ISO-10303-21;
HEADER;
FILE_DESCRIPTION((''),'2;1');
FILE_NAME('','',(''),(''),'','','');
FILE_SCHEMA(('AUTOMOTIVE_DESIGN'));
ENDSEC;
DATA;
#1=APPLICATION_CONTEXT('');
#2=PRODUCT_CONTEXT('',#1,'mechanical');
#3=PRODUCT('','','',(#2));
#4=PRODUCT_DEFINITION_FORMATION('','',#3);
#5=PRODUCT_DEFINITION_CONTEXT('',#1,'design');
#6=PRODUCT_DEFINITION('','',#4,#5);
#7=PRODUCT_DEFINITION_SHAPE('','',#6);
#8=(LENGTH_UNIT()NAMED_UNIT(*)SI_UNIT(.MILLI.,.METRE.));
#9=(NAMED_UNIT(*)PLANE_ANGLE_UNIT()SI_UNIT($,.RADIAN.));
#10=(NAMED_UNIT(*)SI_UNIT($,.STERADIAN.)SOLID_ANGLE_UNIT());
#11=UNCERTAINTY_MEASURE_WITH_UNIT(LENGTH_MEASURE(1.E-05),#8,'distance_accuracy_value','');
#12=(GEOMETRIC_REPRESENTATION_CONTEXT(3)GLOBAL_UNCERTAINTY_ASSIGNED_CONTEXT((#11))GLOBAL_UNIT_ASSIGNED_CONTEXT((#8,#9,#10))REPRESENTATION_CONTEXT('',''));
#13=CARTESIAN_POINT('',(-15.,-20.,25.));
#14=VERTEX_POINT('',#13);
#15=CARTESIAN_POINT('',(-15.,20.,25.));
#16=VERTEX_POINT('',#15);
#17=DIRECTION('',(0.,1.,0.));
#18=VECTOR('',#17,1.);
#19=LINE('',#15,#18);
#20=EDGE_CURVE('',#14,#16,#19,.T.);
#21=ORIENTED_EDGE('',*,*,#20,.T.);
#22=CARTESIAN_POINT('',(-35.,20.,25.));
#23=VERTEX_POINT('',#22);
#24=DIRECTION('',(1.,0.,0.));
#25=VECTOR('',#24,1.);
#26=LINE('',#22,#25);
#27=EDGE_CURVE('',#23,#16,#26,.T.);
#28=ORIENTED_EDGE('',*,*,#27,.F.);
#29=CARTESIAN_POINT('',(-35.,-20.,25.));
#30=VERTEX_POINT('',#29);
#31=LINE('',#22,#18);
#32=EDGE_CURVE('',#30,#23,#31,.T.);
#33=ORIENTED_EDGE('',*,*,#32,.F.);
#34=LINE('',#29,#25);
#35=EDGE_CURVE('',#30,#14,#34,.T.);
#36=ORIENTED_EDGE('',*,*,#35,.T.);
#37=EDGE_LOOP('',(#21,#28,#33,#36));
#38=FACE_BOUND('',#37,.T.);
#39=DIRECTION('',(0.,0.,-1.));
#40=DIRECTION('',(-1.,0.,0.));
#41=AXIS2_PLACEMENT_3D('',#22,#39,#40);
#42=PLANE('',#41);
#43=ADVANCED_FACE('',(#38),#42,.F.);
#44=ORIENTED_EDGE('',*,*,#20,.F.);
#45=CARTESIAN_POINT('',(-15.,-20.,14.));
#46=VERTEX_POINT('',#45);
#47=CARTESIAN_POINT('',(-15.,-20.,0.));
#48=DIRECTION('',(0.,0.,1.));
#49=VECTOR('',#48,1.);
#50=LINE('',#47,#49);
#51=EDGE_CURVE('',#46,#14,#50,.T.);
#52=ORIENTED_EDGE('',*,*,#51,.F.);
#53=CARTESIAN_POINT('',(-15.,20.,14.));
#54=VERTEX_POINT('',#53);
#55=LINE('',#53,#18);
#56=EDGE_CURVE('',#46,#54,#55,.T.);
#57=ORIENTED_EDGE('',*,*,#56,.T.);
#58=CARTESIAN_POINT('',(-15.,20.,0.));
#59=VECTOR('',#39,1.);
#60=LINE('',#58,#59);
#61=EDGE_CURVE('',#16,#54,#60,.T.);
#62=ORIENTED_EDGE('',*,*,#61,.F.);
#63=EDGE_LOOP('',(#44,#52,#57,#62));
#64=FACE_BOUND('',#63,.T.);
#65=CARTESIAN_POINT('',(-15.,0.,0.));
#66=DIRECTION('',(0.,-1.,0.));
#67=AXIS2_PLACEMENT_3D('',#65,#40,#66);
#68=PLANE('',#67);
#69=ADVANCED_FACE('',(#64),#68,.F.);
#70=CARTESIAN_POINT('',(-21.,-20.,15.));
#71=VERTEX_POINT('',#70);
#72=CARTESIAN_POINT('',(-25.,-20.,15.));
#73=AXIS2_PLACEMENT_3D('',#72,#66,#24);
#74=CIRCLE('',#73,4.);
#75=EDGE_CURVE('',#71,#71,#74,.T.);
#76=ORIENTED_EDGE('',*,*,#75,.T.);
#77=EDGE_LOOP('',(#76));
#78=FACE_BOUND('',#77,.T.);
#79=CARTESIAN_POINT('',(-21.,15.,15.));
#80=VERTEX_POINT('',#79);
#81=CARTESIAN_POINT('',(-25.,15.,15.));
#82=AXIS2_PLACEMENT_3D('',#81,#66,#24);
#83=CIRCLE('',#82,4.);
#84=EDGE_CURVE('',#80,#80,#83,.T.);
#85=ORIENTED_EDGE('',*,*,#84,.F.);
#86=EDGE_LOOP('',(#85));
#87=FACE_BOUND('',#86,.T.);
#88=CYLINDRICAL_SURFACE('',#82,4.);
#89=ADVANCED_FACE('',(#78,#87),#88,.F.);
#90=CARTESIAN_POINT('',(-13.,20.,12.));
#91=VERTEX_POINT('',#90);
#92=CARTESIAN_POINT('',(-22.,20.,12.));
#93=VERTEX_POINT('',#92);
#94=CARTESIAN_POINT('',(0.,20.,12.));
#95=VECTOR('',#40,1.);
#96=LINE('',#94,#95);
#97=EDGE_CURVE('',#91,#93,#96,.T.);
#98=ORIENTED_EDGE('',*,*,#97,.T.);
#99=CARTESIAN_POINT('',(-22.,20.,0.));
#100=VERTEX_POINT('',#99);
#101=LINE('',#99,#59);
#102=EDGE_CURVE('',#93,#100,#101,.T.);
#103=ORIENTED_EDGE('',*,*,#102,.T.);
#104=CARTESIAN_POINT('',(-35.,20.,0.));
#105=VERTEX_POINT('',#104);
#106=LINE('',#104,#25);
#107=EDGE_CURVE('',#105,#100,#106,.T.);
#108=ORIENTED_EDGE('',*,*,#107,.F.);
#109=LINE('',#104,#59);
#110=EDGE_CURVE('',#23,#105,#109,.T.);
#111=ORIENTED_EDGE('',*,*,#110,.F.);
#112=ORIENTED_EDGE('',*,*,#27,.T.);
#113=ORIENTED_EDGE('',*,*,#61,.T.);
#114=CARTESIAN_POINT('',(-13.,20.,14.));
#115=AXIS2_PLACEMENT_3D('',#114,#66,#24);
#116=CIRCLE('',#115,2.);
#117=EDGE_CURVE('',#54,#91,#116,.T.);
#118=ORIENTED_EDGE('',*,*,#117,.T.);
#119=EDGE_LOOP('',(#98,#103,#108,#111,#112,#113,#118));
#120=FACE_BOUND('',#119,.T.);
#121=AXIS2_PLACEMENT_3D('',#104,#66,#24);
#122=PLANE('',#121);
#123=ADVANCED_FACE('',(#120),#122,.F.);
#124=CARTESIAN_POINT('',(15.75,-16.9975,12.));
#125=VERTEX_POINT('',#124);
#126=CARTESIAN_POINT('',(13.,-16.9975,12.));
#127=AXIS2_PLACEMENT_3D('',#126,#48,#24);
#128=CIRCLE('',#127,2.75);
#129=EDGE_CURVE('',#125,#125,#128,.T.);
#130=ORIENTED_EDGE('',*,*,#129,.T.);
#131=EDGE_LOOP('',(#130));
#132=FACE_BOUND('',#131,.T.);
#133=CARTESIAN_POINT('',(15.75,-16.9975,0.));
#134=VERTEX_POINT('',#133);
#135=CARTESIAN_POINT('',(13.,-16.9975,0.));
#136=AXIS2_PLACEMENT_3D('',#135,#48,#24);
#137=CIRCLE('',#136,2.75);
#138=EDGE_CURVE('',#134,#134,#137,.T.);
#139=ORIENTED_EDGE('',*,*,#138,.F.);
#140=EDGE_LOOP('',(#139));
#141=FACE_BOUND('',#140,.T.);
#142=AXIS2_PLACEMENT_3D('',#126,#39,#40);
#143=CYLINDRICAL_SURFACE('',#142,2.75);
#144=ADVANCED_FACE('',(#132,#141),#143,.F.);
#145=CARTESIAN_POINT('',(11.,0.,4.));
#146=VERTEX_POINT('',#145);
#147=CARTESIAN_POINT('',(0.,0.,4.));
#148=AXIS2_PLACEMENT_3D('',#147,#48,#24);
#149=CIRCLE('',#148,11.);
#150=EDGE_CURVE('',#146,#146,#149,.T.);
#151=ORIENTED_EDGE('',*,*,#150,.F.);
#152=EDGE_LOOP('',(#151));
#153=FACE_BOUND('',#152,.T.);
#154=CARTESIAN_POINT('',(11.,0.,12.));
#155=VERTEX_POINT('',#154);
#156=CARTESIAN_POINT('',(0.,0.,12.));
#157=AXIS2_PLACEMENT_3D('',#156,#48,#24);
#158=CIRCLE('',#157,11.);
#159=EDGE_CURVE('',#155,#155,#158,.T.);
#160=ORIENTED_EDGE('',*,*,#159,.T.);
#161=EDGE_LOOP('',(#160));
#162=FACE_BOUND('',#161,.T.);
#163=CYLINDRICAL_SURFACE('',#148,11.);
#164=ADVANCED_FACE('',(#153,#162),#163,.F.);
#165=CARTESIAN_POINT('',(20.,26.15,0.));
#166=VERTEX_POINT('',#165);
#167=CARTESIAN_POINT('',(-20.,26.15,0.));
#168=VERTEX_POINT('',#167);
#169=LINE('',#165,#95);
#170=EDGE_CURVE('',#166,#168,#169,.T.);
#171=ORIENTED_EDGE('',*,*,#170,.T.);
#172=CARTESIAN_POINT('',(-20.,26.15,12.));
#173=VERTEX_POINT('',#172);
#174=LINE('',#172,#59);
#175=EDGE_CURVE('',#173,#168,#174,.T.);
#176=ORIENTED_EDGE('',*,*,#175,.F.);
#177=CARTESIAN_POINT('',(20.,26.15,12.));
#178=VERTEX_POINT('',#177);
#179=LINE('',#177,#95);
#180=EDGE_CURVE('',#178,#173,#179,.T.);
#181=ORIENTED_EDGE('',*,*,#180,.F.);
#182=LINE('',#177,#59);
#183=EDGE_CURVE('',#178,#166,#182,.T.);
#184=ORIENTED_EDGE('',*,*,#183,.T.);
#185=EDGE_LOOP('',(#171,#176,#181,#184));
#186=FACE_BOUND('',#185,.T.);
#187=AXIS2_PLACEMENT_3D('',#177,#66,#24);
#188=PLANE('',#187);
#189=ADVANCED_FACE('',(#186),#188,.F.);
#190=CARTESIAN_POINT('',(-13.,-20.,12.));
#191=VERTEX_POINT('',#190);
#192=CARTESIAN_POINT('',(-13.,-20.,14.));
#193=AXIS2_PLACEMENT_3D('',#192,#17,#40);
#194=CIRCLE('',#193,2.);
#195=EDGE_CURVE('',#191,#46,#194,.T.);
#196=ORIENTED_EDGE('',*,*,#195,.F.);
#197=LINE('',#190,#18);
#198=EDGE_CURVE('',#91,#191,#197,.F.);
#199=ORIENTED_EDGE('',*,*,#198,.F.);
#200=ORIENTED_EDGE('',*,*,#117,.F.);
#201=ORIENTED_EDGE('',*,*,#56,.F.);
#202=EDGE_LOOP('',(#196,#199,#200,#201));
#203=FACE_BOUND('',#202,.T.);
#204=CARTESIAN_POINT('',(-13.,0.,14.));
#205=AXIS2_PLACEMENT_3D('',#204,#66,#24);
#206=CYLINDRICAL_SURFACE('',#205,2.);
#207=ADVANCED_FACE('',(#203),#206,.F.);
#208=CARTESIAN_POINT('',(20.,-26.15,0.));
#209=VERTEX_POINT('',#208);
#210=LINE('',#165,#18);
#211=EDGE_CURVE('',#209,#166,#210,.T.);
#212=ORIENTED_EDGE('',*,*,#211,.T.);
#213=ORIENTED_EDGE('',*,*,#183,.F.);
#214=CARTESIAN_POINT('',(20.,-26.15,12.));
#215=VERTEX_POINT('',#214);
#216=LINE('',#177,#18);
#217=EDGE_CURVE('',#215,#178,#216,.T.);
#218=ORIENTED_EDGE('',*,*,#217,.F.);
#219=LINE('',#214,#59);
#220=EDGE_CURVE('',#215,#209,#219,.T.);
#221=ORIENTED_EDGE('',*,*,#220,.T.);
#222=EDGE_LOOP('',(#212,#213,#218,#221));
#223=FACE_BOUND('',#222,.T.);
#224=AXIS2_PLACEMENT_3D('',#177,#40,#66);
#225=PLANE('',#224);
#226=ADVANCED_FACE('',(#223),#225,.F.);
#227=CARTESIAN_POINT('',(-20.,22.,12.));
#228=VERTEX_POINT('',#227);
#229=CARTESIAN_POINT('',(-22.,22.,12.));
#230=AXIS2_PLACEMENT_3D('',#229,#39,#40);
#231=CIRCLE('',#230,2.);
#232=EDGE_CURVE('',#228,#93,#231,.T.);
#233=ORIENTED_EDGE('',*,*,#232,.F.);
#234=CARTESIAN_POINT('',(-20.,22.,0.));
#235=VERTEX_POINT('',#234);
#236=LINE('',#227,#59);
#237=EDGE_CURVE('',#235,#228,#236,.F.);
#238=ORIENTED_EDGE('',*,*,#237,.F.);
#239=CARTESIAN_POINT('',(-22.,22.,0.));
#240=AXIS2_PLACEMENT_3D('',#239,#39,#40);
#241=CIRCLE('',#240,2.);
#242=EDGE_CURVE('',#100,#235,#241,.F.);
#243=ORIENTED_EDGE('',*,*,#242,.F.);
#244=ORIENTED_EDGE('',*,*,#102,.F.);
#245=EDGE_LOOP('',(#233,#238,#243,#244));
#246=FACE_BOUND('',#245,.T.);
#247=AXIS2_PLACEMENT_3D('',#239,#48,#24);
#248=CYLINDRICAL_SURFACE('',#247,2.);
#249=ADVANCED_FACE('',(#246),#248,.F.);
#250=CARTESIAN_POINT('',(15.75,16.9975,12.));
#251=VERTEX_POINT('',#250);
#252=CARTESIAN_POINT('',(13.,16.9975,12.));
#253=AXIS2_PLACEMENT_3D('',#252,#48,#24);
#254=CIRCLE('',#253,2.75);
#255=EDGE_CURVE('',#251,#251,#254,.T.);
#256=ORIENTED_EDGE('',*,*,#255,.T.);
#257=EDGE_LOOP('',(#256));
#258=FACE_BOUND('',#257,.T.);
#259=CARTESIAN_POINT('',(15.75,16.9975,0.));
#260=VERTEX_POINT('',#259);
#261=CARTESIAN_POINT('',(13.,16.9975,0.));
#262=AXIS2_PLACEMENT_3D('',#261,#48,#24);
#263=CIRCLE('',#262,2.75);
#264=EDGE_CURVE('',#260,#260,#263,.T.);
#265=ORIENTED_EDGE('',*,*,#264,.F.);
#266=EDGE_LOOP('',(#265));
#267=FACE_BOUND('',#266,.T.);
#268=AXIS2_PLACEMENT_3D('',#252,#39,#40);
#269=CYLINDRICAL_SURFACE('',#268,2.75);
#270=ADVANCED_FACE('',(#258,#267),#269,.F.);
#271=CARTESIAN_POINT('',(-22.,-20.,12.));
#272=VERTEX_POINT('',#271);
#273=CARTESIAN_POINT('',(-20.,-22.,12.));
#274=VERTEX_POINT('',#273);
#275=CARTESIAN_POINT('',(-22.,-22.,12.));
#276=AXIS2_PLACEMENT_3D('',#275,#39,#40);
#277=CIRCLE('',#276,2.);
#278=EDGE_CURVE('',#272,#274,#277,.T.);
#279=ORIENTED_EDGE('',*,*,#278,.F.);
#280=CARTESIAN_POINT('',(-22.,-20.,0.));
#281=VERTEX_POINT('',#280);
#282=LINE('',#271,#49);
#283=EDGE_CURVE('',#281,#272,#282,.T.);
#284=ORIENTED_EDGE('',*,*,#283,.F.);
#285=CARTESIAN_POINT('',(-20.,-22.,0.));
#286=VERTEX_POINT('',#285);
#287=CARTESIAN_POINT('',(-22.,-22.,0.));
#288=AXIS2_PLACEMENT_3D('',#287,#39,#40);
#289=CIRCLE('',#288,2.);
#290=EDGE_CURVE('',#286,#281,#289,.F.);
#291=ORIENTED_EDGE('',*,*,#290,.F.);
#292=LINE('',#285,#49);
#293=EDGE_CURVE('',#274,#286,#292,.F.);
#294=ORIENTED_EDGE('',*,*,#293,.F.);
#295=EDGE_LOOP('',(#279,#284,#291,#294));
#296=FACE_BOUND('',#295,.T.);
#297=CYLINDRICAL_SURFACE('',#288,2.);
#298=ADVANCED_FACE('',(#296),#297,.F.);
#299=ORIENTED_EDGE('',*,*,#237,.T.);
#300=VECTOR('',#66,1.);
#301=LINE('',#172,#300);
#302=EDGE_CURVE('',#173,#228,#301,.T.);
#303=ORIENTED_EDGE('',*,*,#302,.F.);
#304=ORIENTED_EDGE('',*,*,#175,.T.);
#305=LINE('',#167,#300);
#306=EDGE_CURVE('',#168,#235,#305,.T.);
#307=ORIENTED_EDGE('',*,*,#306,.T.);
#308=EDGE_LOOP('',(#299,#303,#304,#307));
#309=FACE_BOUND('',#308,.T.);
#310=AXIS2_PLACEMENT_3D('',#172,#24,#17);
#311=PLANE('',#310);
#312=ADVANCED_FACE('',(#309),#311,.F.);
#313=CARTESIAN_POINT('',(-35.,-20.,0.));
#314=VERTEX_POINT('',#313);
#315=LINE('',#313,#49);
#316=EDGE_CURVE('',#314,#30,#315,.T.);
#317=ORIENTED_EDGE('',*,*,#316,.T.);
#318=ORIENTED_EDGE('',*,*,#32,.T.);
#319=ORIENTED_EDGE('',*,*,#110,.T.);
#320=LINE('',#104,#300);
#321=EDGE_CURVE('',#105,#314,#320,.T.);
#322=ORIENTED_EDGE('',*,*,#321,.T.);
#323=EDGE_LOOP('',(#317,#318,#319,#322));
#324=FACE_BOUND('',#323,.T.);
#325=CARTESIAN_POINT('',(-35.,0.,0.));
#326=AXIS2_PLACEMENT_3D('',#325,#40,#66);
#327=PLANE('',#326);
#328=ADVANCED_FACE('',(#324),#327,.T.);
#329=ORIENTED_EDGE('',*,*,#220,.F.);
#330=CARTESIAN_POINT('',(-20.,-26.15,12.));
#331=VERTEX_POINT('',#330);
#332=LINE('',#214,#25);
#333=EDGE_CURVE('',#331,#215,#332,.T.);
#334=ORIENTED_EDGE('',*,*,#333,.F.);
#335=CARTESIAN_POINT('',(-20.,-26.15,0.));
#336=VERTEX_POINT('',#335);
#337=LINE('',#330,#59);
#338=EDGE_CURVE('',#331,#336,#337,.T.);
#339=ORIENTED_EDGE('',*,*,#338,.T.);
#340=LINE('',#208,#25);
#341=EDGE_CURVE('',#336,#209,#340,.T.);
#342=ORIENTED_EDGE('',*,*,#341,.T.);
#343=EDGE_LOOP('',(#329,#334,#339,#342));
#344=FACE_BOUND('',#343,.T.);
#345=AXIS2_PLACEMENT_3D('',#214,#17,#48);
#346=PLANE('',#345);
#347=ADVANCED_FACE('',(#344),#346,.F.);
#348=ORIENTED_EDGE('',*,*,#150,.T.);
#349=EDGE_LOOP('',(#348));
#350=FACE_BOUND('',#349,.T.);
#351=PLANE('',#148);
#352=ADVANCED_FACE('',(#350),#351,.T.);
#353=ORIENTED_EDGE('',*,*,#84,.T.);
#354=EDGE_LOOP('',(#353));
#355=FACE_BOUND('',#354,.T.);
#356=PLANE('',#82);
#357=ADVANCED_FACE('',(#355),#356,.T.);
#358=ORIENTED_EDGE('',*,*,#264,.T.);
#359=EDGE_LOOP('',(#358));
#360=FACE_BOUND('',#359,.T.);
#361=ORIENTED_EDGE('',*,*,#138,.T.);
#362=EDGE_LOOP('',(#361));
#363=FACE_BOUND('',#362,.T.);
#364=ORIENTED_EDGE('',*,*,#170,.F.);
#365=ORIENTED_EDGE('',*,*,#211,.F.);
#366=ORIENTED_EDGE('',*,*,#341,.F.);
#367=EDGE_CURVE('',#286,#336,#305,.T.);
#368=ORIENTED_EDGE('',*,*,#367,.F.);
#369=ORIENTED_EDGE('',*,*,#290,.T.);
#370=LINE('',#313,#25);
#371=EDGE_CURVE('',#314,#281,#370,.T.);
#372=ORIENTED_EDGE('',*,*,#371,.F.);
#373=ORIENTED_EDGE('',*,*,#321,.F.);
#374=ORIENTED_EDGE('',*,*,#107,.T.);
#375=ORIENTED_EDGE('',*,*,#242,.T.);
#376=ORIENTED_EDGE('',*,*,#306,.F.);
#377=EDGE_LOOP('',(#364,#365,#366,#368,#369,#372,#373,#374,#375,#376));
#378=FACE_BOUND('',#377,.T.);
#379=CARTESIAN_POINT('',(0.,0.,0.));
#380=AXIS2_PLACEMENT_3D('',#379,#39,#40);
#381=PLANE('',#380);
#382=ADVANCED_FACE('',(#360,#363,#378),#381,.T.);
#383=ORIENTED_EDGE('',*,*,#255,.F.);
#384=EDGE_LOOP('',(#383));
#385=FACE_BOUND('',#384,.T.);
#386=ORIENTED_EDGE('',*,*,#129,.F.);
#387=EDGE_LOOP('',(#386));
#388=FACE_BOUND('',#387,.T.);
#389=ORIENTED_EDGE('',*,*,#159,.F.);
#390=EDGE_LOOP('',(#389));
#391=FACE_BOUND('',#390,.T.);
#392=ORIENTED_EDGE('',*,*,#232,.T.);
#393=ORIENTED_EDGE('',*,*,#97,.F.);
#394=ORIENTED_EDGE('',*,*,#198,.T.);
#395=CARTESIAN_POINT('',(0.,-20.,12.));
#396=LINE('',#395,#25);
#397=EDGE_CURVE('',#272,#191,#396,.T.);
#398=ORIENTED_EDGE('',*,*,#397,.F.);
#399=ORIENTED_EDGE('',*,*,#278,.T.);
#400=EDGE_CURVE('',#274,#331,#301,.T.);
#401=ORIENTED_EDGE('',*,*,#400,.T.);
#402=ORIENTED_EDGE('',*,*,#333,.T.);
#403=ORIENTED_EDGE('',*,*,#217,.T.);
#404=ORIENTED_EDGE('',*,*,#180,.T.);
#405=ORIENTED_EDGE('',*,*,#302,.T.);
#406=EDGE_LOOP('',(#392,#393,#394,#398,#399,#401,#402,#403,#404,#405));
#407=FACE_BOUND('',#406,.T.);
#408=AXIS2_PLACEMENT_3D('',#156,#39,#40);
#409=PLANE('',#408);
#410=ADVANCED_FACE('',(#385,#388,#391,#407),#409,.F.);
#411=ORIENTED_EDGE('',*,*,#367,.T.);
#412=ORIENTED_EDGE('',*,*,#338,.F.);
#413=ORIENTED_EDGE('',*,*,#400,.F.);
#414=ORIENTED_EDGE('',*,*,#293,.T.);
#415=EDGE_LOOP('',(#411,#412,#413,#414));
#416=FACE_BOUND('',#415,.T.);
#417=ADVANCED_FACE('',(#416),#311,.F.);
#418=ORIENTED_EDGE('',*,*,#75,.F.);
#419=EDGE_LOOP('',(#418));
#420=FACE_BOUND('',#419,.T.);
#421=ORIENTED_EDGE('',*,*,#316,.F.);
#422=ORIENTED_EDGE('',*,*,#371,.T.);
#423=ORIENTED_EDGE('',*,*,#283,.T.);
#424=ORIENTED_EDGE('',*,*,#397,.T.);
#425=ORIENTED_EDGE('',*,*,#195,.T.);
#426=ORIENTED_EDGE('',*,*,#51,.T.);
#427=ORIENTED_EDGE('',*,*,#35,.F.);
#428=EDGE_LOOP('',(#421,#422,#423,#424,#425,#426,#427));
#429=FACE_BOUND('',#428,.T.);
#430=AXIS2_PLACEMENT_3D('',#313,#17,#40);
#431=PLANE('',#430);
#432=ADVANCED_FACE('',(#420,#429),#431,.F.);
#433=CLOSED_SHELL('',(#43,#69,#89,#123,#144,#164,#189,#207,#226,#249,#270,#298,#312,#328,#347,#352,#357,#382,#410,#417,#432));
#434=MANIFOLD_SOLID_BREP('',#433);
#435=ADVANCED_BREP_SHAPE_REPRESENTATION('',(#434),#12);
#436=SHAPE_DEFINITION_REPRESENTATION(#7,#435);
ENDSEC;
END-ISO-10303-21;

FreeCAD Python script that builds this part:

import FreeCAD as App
import Part
import Sketcher
from FreeCAD import Vector
Q = App.Units.Quantity


def edges_at(feature, points):
    """Names of the edges that pass closest to the given points."""
    edges = feature.Shape.Edges
    near = lambda p: min(range(len(edges)), key=lambda i: edges[i].distToShape(Part.Vertex(*p))[0])
    return sorted({f"Edge{near(p) + 1}" for p in points})


def add_polygon(sketch, points):
    """Adds a closed chain of lines whose ends are joined by coincident constraints."""
    first, n = sketch.GeometryCount, len(points)
    for a, b in zip(points, points[1:] + points[:1]):
        sketch.addGeometry(Part.LineSegment(App.Vector(*a, 0), App.Vector(*b, 0)), False)
    for i in range(n):
        sketch.addConstraint(Sketcher.Constraint("Coincident", first + i, 2, first + (i + 1) % n, 1))

doc = App.newDocument("Part")
params = doc.addObject("Spreadsheet::Sheet", "Params")
for row, (alias, value) in enumerate([
    ("sketch1_diameter", "5.5 mm"),
    ("sketch1_width", "40 mm"),
    ("sketch1_height", "52.3 mm"),
    ("pad1_length", "12 mm"),
    ("sketch2_diameter", "22 mm"),
    ("pocket1_length", "8 mm"),
    ("sketch3_width", "40 mm"),
    ("sketch3_height", "25 mm"),
    ("pad2_length", "20 mm"),
    ("fillet_radius", "2 mm"),
    ("fillet2_radius", "2 mm"),
    ("sketch4_diameter", "8 mm"),
    ("pocket2_length", "35 mm"),
], start=1):
    params.set(f"A{row}", alias)
    params.set(f"B{row}", "=" + value)
    params.setAlias(f"B{row}", alias)

body = doc.addObject("PartDesign::Body", "Body")

sketch1 = body.newObject("Sketcher::SketchObject", "Sketch")
sketch1.AttachmentSupport = (doc.getObject("XY_Plane"), [""])
sketch1.MapMode = "FlatFace"
add_polygon(sketch1, [(-20, 26.1), (-20, -26.1), (20, -26.1), (20, 26.1)])
sketch1.addGeometry(Part.Circle(Vector(13, -17, 0), Vector(0, 0, 1), 2.8), False)
sketch1.addGeometry(Part.Circle(Vector(13, 17, 0), Vector(0, 0, 1), 2.8), False)
sketch1.addConstraint(Sketcher.Constraint("Vertical", 0))
sketch1.addConstraint(Sketcher.Constraint("Horizontal", 1))
sketch1.addConstraint(Sketcher.Constraint("Vertical", 2))
sketch1.addConstraint(Sketcher.Constraint("Horizontal", 3))
sketch1.addConstraint(Sketcher.Constraint("Equal", 4, 5))
sketch1.addConstraint(Sketcher.Constraint("Symmetric", 0, 2, 2, 2, -1, 1))
sketch1.addConstraint(Sketcher.Constraint("Symmetric", 4, 3, 5, 3, -1))
sketch1.addConstraint(Sketcher.Constraint("Diameter", 4, Q("5.5 mm")))
sketch1.addConstraint(Sketcher.Constraint("DistanceX", 1, 1, 1, 2, Q("40 mm")))
sketch1.addConstraint(Sketcher.Constraint("DistanceY", 0, 2, 0, 1, Q("52.3 mm")))
sketch1.addConstraint(Sketcher.Constraint("DistanceX", -1, 1, 4, 3, Q("13 mm")))
sketch1.addConstraint(Sketcher.Constraint("DistanceY", 4, 3, 5, 3, Q("33.995 mm")))
sketch1.setExpression("Constraints[11]", "Params.sketch1_diameter")
sketch1.setExpression("Constraints[12]", "Params.sketch1_width")
sketch1.setExpression("Constraints[13]", "Params.sketch1_height")
pad1 = body.newObject("PartDesign::Pad", "Pad")
pad1.Profile = sketch1
pad1.setExpression("Length", "Params.pad1_length")

sketch2 = body.newObject("Sketcher::SketchObject", "Sketch001")
sketch2.AttachmentSupport = (doc.getObject("XY_Plane"), [""])
sketch2.MapMode = "FlatFace"
sketch2.AttachmentOffset = App.Placement(Vector(0, 0, 12), App.Rotation())
sketch2.addGeometry(Part.Circle(Vector(0, 0, 0), Vector(0, 0, 1), 11), False)
sketch2.addConstraint(Sketcher.Constraint("Coincident", 0, 3, -1, 1))
sketch2.addConstraint(Sketcher.Constraint("Diameter", 0, Q("22 mm")))
sketch2.setExpression("Constraints[1]", "Params.sketch2_diameter")
pocket1 = body.newObject("PartDesign::Pocket", "Pocket")
pocket1.Profile = sketch2
pocket1.setExpression("Length", "Params.pocket1_length")

sketch3 = body.newObject("Sketcher::SketchObject", "Sketch002")
sketch3.AttachmentSupport = (doc.getObject("YZ_Plane"), [""])
sketch3.MapMode = "FlatFace"
sketch3.AttachmentOffset = App.Placement(Vector(0, 0, -15), App.Rotation())
add_polygon(sketch3, [(20, 0), (-20, 0), (-20, 25), (20, 25)])
sketch3.addConstraint(Sketcher.Constraint("Horizontal", 0))
sketch3.addConstraint(Sketcher.Constraint("Vertical", 1))
sketch3.addConstraint(Sketcher.Constraint("Horizontal", 2))
sketch3.addConstraint(Sketcher.Constraint("Vertical", 3))
sketch3.addConstraint(Sketcher.Constraint("Symmetric", 0, 2, 3, 2, -1, 1))
sketch3.addConstraint(Sketcher.Constraint("DistanceX", 0, 2, 0, 1, Q("40 mm")))
sketch3.addConstraint(Sketcher.Constraint("DistanceY", 1, 1, 1, 2, Q("25 mm")))
sketch3.setExpression("Constraints[9]", "Params.sketch3_width")
sketch3.setExpression("Constraints[10]", "Params.sketch3_height")
pad2 = body.newObject("PartDesign::Pad", "Pad001")
pad2.Profile = sketch3
pad2.setExpression("Length", "Params.pad2_length")
pad2.Reversed = True
doc.recompute()

fillet = body.newObject("PartDesign::Fillet", "Fillet")
fillet.Base = (pad2, edges_at(pad2, [(-20, 20, 6), (-20, -20, 6)]))
fillet.setExpression("Radius", "Params.fillet_radius")
doc.recompute()

fillet2 = body.newObject("PartDesign::Fillet", "Fillet001")
fillet2.Base = (fillet, edges_at(fillet, [(-15, 0, 12)]))
fillet2.setExpression("Radius", "Params.fillet2_radius")

sketch4 = body.newObject("Sketcher::SketchObject", "Sketch003")
sketch4.AttachmentSupport = (doc.getObject("XZ_Plane"), [""])
sketch4.MapMode = "FlatFace"
sketch4.AttachmentOffset = App.Placement(Vector(0, 0, 20), App.Rotation())
sketch4.addGeometry(Part.Circle(Vector(-25, 15, 0), Vector(0, 0, 1), 4), False)
sketch4.addConstraint(Sketcher.Constraint("Diameter", 0, Q("8 mm")))
sketch4.addConstraint(Sketcher.Constraint("DistanceX", 0, 3, -1, 1, Q("25 mm")))
sketch4.addConstraint(Sketcher.Constraint("DistanceY", -1, 1, 0, 3, Q("15 mm")))
sketch4.setExpression("Constraints[0]", "Params.sketch4_diameter")
pocket2 = body.newObject("PartDesign::Pocket", "Pocket001")
pocket2.Profile = sketch4
pocket2.setExpression("Length", "Params.pocket2_length")

doc.recompute()
